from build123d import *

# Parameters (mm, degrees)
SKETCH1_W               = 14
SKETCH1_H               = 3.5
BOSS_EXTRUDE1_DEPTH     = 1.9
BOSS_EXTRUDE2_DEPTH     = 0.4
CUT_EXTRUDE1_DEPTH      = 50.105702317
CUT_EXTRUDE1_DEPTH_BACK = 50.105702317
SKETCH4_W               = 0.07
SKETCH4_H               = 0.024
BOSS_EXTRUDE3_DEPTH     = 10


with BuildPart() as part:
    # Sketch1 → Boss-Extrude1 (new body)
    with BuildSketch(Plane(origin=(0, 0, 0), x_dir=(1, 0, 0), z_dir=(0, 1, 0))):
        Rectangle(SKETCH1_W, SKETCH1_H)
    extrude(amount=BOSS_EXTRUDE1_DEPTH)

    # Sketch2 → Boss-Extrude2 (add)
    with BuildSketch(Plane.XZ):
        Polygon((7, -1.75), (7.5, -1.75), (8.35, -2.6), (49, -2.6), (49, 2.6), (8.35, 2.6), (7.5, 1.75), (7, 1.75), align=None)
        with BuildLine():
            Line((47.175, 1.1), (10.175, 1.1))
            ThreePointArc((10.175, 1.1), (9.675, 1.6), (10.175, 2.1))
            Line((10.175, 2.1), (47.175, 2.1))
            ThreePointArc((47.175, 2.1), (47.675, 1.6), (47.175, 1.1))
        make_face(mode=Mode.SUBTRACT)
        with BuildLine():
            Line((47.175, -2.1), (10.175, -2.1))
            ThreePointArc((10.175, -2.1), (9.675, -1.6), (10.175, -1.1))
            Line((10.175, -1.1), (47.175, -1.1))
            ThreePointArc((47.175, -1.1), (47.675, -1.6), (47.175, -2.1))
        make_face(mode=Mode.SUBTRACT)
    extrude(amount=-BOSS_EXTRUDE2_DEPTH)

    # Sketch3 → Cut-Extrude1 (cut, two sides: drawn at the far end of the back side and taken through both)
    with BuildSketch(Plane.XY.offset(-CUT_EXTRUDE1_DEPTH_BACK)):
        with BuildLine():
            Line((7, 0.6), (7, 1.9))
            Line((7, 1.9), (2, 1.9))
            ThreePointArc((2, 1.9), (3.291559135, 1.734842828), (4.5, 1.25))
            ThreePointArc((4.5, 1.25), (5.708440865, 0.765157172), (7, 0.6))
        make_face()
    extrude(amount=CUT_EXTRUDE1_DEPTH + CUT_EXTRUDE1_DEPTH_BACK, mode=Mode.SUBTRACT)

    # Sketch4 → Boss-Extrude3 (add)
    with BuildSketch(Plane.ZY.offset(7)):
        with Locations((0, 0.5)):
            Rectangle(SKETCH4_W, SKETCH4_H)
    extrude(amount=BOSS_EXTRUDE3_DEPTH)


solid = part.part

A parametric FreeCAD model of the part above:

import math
import FreeCAD as App
import Part
import Sketcher
from FreeCAD import Vector
Q = App.Units.Quantity

doc = App.newDocument("Part")
body = doc.addObject("PartDesign::Body", "Body")

sketch1 = doc.addObject("Sketcher::SketchObject", "Sketch")
body.addObject(sketch1)
sketch1.AttachmentSupport = (doc.XZ_Plane, [""])
sketch1.MapMode = "FlatFace"
sketch1.addGeometry([
    Part.LineSegment(Vector(-7, -1.75, 0), Vector(-7, 1.75, 0)),
    Part.LineSegment(Vector(-7, 1.75, 0), Vector(7, 1.75, 0)),
    Part.LineSegment(Vector(7, 1.75, 0), Vector(7, -1.75, 0)),
    Part.LineSegment(Vector(7, -1.75, 0), Vector(-7, -1.75, 0)),
], False)
sketch1.addConstraint([
    Sketcher.Constraint("Coincident", 0, 2, 1, 1),
    Sketcher.Constraint("Coincident", 1, 2, 2, 1),
    Sketcher.Constraint("Coincident", 2, 2, 3, 1),
    Sketcher.Constraint("Coincident", 3, 2, 0, 1),
    Sketcher.Constraint("Vertical", 0),
    Sketcher.Constraint("Horizontal", 1),
    Sketcher.Constraint("Vertical", 2),
    Sketcher.Constraint("Horizontal", 3),
    Sketcher.Constraint("Symmetric", 0, 2, 2, 2, -1, 1),
    Sketcher.Constraint("DistanceX", 1, 1, 1, 2, Q("14 mm")),
    Sketcher.Constraint("DistanceY", 0, 1, 0, 2, Q("3.5 mm")),
])
pad1 = doc.addObject("PartDesign::Pad", "Pad")
body.addObject(pad1)
pad1.Profile = sketch1
pad1.Length = 1.9
pad1.Reversed = True

sketch2 = doc.addObject("Sketcher::SketchObject", "Sketch001")
body.addObject(sketch2)
sketch2.AttachmentSupport = (doc.XZ_Plane, [""])
sketch2.MapMode = "FlatFace"
sketch2.addGeometry([
    Part.LineSegment(Vector(7, -1.75, 0), Vector(7.5, -1.75, 0)),
    Part.LineSegment(Vector(7.5, -1.75, 0), Vector(8.35, -2.6, 0)),
    Part.LineSegment(Vector(8.35, -2.6, 0), Vector(49, -2.6, 0)),
    Part.LineSegment(Vector(49, -2.6, 0), Vector(49, 2.6, 0)),
    Part.LineSegment(Vector(49, 2.6, 0), Vector(8.35, 2.6, 0)),
    Part.LineSegment(Vector(8.35, 2.6, 0), Vector(7.5, 1.75, 0)),
    Part.LineSegment(Vector(7.5, 1.75, 0), Vector(7, 1.75, 0)),
    Part.LineSegment(Vector(7, 1.75, 0), Vector(7, -1.75, 0)),
    Part.ArcOfCircle(Part.Circle(Vector(47.175, -1.6, 0), Vector(0, 0, 1), 0.5), math.radians(-90), math.radians(90)),
    Part.LineSegment(Vector(47.175, -2.1, 0), Vector(10.175, -2.1, 0)),
    Part.ArcOfCircle(Part.Circle(Vector(10.175, -1.6, 0), Vector(0, 0, 1), 0.5), math.radians(90), math.radians(270)),
    Part.LineSegment(Vector(10.175, -1.1, 0), Vector(47.175, -1.1, 0)),
    Part.ArcOfCircle(Part.Circle(Vector(47.175, 1.6, 0), Vector(0, 0, 1), 0.5), math.radians(-90), math.radians(90)),
    Part.LineSegment(Vector(47.175, 1.1, 0), Vector(10.175, 1.1, 0)),
    Part.ArcOfCircle(Part.Circle(Vector(10.175, 1.6, 0), Vector(0, 0, 1), 0.5), math.radians(90), math.radians(270)),
    Part.LineSegment(Vector(10.175, 2.1, 0), Vector(47.175, 2.1, 0)),
], False)
sketch2.addConstraint([
    Sketcher.Constraint("Coincident", 0, 2, 1, 1),
    Sketcher.Constraint("Coincident", 1, 2, 2, 1),
    Sketcher.Constraint("Coincident", 2, 2, 3, 1),
    Sketcher.Constraint("Coincident", 3, 2, 4, 1),
    Sketcher.Constraint("Coincident", 4, 2, 5, 1),
    Sketcher.Constraint("Coincident", 5, 2, 6, 1),
    Sketcher.Constraint("Coincident", 6, 2, 7, 1),
    Sketcher.Constraint("Coincident", 7, 2, 0, 1),
    Sketcher.Constraint("Tangent", 8, 1, 9, 1),
    Sketcher.Constraint("Tangent", 9, 2, 10, 2),
    Sketcher.Constraint("Tangent", 10, 1, 11, 1),
    Sketcher.Constraint("Tangent", 11, 2, 8, 2),
    Sketcher.Constraint("Tangent", 12, 1, 13, 1),
    Sketcher.Constraint("Tangent", 13, 2, 14, 2),
    Sketcher.Constraint("Tangent", 14, 1, 15, 1),
    Sketcher.Constraint("Tangent", 15, 2, 12, 2),
    Sketcher.Constraint("Horizontal", 0),
    Sketcher.Constraint("Horizontal", 2),
    Sketcher.Constraint("Vertical", 3),
    Sketcher.Constraint("Horizontal", 4),
    Sketcher.Constraint("Horizontal", 6),
    Sketcher.Constraint("Vertical", 7),
    Sketcher.Constraint("Horizontal", 9),
    Sketcher.Constraint("Horizontal", 11),
    Sketcher.Constraint("Horizontal", 13),
    Sketcher.Constraint("Horizontal", 15),
    Sketcher.Constraint("Equal", 10, 12),
    Sketcher.Constraint("Symmetric", 8, 3, 12, 3, -1),
    Sketcher.Constraint("Symmetric", 1, 2, 4, 2, -1),
    Sketcher.Constraint("Symmetric", 0, 2, 5, 2, -1),
    Sketcher.Constraint("Perpendicular", 1, 5),
    Sketcher.Constraint("Vertical", 10, 3, 14, 3),
    Sketcher.Constraint("Radius", 8, Q("0.5 mm")),
    Sketcher.Constraint("DistanceX", 9, 2, 9, 1, Q("37 mm")),
    Sketcher.Constraint("DistanceX", 0, 1, 0, 2, Q("0.5 mm")),
    Sketcher.Constraint("DistanceY", 3, 1, 3, 2, Q("5.2 mm")),
    Sketcher.Constraint("DistanceY", 7, 2, 7, 1, Q("3.5 mm")),
    Sketcher.Constraint("DistanceX", -1, 1, 2, 2, Q("49 mm")),
    Sketcher.Constraint("DistanceX", -1, 1, 6, 2, Q("7 mm")),
    Sketcher.Constraint("DistanceY", 1, 2, 10, 3, Q("1 mm")),
    Sketcher.Constraint("DistanceX", -1, 1, 8, 3, Q("47.175 mm")),
])
pad2 = doc.addObject("PartDesign::Pad", "Pad001")
body.addObject(pad2)
pad2.Profile = sketch2
pad2.Length = 0.4
pad2.Reversed = True

sketch3 = doc.addObject("Sketcher::SketchObject", "Sketch002")
body.addObject(sketch3)
sketch3.AttachmentSupport = (doc.XY_Plane, [""])
sketch3.MapMode = "FlatFace"
sketch3.addGeometry([
    Part.LineSegment(Vector(7, 0.6, 0), Vector(7, 1.9, 0)),
    Part.LineSegment(Vector(7, 1.9, 0), Vector(2, 1.9, 0)),
    Part.ArcOfCircle(Part.Circle(Vector(2, -3.232692, 0), Vector(0, 0, 1), 5.132692), math.radians(60.851568), math.radians(90)),
    Part.ArcOfCircle(Part.Circle(Vector(7, 5.732692, 0), Vector(0, 0, 1), 5.132692), math.radians(-119.148432), math.radians(-90)),
], False)
sketch3.addConstraint([
    Sketcher.Constraint("Coincident", 0, 2, 1, 1),
    Sketcher.Constraint("Tangent", 1, 2, 2, 2),
    Sketcher.Constraint("Tangent", 2, 1, 3, 1),
    Sketcher.Constraint("Coincident", 3, 2, 0, 1),
    Sketcher.Constraint("Vertical", 0),
    Sketcher.Constraint("Horizontal", 1),
    Sketcher.Constraint("Equal", 2, 3),
    Sketcher.Constraint("Vertical", 3, 3, 0, 2),
    Sketcher.Constraint("DistanceX", 1, 2, 1, 1, Q("5 mm")),
    Sketcher.Constraint("DistanceY", 0, 1, 0, 2, Q("1.3 mm")),
    Sketcher.Constraint("DistanceX", -1, 1, 2, 3, Q("2 mm")),
    Sketcher.Constraint("DistanceY", -1, 1, 0, 2, Q("1.9 mm")),
])
pocket1 = doc.addObject("PartDesign::Pocket", "Pocket")
body.addObject(pocket1)
pocket1.Profile = sketch3
pocket1.Type = "ThroughAll"
pocket1.Midplane = True

sketch4 = doc.addObject("Sketcher::SketchObject", "Sketch003")
body.addObject(sketch4)
sketch4.AttachmentSupport = (doc.YZ_Plane, [""])
sketch4.MapMode = "FlatFace"
sketch4.AttachmentOffset = App.Placement(Vector(0, 0, -7), App.Rotation())
sketch4.addGeometry([
    Part.LineSegment(Vector(0.512, -0.035, 0), Vector(0.488, -0.035, 0)),
    Part.LineSegment(Vector(0.488, -0.035, 0), Vector(0.488, 0.035, 0)),
    Part.LineSegment(Vector(0.488, 0.035, 0), Vector(0.512, 0.035, 0)),
    Part.LineSegment(Vector(0.512, 0.035, 0), Vector(0.512, -0.035, 0)),
], False)
sketch4.addConstraint([
    Sketcher.Constraint("Coincident", 0, 2, 1, 1),
    Sketcher.Constraint("Coincident", 1, 2, 2, 1),
    Sketcher.Constraint("Coincident", 2, 2, 3, 1),
    Sketcher.Constraint("Coincident", 3, 2, 0, 1),
    Sketcher.Constraint("Horizontal", 0),
    Sketcher.Constraint("Vertical", 1),
    Sketcher.Constraint("Horizontal", 2),
    Sketcher.Constraint("Vertical", 3),
    Sketcher.Constraint("DistanceY", 1, 1, 1, 2, Q("0.07 mm")),
    Sketcher.Constraint("DistanceX", 0, 2, 0, 1, Q("0.024 mm")),
    Sketcher.Constraint("DistanceX", -1, 1, 0, 2, Q("0.488 mm")),
    Sketcher.Constraint("DistanceY", 0, 2, -1, 1, Q("0.035 mm")),
])
pad3 = doc.addObject("PartDesign::Pad", "Pad002")
body.addObject(pad3)
pad3.Profile = sketch4
pad3.Length = 10
pad3.Reversed = True

doc.recompute()
